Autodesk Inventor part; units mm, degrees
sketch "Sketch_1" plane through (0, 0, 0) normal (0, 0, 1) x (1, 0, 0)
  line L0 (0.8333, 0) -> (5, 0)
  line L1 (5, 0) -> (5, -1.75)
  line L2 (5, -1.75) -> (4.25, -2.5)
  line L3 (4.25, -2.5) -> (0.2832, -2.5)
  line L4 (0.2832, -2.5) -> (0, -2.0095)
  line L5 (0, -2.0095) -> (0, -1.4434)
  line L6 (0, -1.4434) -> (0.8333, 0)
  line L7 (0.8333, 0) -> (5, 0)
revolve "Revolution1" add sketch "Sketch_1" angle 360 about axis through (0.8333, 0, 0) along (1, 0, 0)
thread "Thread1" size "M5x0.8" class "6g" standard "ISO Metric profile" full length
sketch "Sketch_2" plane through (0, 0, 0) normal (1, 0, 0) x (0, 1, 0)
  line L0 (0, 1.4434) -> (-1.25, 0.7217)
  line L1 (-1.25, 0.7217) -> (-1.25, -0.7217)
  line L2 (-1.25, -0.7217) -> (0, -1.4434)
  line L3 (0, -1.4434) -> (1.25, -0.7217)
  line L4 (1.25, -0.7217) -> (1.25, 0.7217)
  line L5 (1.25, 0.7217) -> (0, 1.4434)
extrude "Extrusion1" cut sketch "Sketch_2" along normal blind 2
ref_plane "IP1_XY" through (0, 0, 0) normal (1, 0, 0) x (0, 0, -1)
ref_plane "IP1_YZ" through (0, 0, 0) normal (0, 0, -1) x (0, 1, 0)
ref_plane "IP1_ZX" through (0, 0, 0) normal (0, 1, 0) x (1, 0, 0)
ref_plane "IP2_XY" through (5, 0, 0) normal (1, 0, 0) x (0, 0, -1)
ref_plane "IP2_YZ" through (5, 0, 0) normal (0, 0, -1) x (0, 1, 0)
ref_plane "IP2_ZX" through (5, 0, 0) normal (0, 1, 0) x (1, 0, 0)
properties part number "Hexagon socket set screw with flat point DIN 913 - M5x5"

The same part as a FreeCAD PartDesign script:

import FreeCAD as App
import Part
import Sketcher
Q = App.Units.Quantity


def add_polygon(sketch, points):
    """Adds a closed chain of lines whose ends are joined by coincident constraints."""
    first, n = sketch.GeometryCount, len(points)
    for a, b in zip(points, points[1:] + points[:1]):
        sketch.addGeometry(Part.LineSegment(App.Vector(*a, 0), App.Vector(*b, 0)), False)
    for i in range(n):
        sketch.addConstraint(Sketcher.Constraint("Coincident", first + i, 2, first + (i + 1) % n, 1))

doc = App.newDocument("Part")
body = doc.addObject("PartDesign::Body", "Body")

# Sketch on XY plane
sketch1 = body.newObject("Sketcher::SketchObject", "Sketch")
sketch1.AttachmentSupport = (doc.getObject("XY_Plane"), [""])
sketch1.MapMode = "FlatFace"
add_polygon(sketch1, [(5, 0), (0.8, 0), (0, -1.4), (0, -2), (0.3, -2.5), (4.2, -2.5), (5, -1.8)])  # lines 0-6
sketch1.addConstraint([
    Sketcher.Constraint("Horizontal", 0),
    Sketcher.Constraint("Vertical", 2),
    Sketcher.Constraint("Horizontal", 4),
    Sketcher.Constraint("Vertical", 6),
    Sketcher.Constraint("PointOnObject", 0, 2, -1),
    Sketcher.Constraint("PointOnObject", 1, 2, -2),
    Sketcher.Constraint("Angle", 3, Q("-59.9992 deg")),
    Sketcher.Constraint("Angle", 5, Q("45 deg")),
    Sketcher.Constraint("DistanceX", -1, 1, 5, 2, Q("5 mm")),
    Sketcher.Constraint("DistanceY", 6, 1, 6, 2, Q("1.75 mm")),
    Sketcher.Constraint("DistanceY", 3, 2, -1, 1, Q("2.5 mm")),
    Sketcher.Constraint("DistanceY", 2, 2, 2, 1, Q("0.566 mm")),
    Sketcher.Constraint("DistanceX", 3, 2, 0, 2, Q("0.55 mm")),
    Sketcher.Constraint("DistanceX", 0, 2, 0, 1, Q("4.1667 mm")),
])
revolution = body.newObject("PartDesign::Revolution", "Revolution")
revolution.Profile = sketch1
revolution.ReferenceAxis = (sketch1, ["H_Axis"])
revolution.Angle = 360

# Sketch on YZ plane
sketch2 = body.newObject("Sketcher::SketchObject", "Sketch001")
sketch2.AttachmentSupport = (doc.getObject("YZ_Plane"), [""])
sketch2.MapMode = "FlatFace"
add_polygon(sketch2, [(1.2, 0.7), (0, 1.4), (-1.2, 0.7), (-1.2, -0.7), (0, -1.4), (1.2, -0.7)])  # lines 0-5
sketch2.addConstraint([
    Sketcher.Constraint("Vertical", 2),
    Sketcher.Constraint("Vertical", 5),
    Sketcher.Constraint("Symmetric", 0, 2, 3, 2, -1, 1),
    Sketcher.Constraint("Symmetric", 1, 2, 4, 2, -1, 1),
    Sketcher.Constraint("PointOnObject", 0, 2, -2),
    Sketcher.Constraint("Parallel", 0, 3),
    Sketcher.Constraint("Horizontal", 2, 2, 4, 2),
    Sketcher.Constraint("Angle", 0, Q("149.9996 deg")),
    Sketcher.Constraint("DistanceX", 2, 2, 4, 2, Q("2.5 mm")),
    Sketcher.Constraint("DistanceY", 2, 2, 2, 1, Q("1.4434 mm")),
])
pocket1 = body.newObject("PartDesign::Pocket", "Pocket")
pocket1.Profile = sketch2
pocket1.Length = 2
pocket1.Reversed = True

doc.recompute()
